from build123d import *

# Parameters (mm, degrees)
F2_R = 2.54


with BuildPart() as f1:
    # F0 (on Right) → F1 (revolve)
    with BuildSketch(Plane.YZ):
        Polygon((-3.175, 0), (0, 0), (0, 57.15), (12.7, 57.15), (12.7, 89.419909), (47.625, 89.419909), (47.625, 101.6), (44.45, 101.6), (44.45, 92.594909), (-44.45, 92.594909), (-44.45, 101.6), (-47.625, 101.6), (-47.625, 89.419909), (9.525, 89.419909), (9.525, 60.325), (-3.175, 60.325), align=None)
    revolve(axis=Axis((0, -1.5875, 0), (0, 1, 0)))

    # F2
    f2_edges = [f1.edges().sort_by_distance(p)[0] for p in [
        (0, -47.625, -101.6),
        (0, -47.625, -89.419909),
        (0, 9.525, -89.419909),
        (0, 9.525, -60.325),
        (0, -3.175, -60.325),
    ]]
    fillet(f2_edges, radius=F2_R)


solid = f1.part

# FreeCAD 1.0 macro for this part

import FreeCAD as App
import Part
import Sketcher
from FreeCAD import Vector
Q = App.Units.Quantity


def edges_at(feature, points):
    """Names of the edges that pass closest to the given points."""
    edges = feature.Shape.Edges
    near = lambda p: min(range(len(edges)), key=lambda i: edges[i].distToShape(Part.Vertex(*p))[0])
    return sorted({f"Edge{near(p) + 1}" for p in points})

doc = App.newDocument("Part")
body = doc.addObject("PartDesign::Body", "Body")

sketch1 = body.newObject("Sketcher::SketchObject", "Sketch")
sketch1.AttachmentSupport = (doc.getObject("YZ_Plane"), [""])
sketch1.MapMode = "FlatFace"
sketch1.addGeometry(Part.LineSegment(Vector(-3.2, 0, 0), Vector(0, 0, 0)), False)
sketch1.addGeometry(Part.LineSegment(Vector(0, 0, 0), Vector(0, 57.1, 0)), False)
sketch1.addGeometry(Part.LineSegment(Vector(0, 57.1, 0), Vector(12.7, 57.1, 0)), False)
sketch1.addGeometry(Part.LineSegment(Vector(12.7, 57.1, 0), Vector(12.7, 89.4, 0)), False)
sketch1.addGeometry(Part.LineSegment(Vector(12.7, 89.4, 0), Vector(47.6, 89.4, 0)), False)
sketch1.addGeometry(Part.LineSegment(Vector(47.6, 89.4, 0), Vector(47.6, 101.6, 0)), False)
sketch1.addGeometry(Part.LineSegment(Vector(47.6, 101.6, 0), Vector(44.5, 101.6, 0)), False)
sketch1.addGeometry(Part.LineSegment(Vector(44.5, 101.6, 0), Vector(44.5, 92.6, 0)), False)
sketch1.addGeometry(Part.LineSegment(Vector(44.5, 92.6, 0), Vector(-44.5, 92.6, 0)), False)
sketch1.addGeometry(Part.LineSegment(Vector(-44.5, 92.6, 0), Vector(-44.5, 101.6, 0)), False)
sketch1.addGeometry(Part.LineSegment(Vector(-44.5, 101.6, 0), Vector(-47.6, 101.6, 0)), False)
sketch1.addGeometry(Part.LineSegment(Vector(-47.6, 101.6, 0), Vector(-47.6, 89.4, 0)), False)
sketch1.addGeometry(Part.LineSegment(Vector(-47.6, 89.4, 0), Vector(9.5, 89.4, 0)), False)
sketch1.addGeometry(Part.LineSegment(Vector(9.5, 89.4, 0), Vector(9.5, 60.3, 0)), False)
sketch1.addGeometry(Part.LineSegment(Vector(9.5, 60.3, 0), Vector(-3.2, 60.3, 0)), False)
sketch1.addGeometry(Part.LineSegment(Vector(-3.2, 60.3, 0), Vector(-3.2, 0, 0)), False)
sketch1.addConstraint(Sketcher.Constraint("Coincident", 0, 2, 1, 1))
sketch1.addConstraint(Sketcher.Constraint("Coincident", 1, 2, 2, 1))
sketch1.addConstraint(Sketcher.Constraint("Coincident", 2, 2, 3, 1))
sketch1.addConstraint(Sketcher.Constraint("Coincident", 3, 2, 4, 1))
sketch1.addConstraint(Sketcher.Constraint("Coincident", 4, 2, 5, 1))
sketch1.addConstraint(Sketcher.Constraint("Coincident", 5, 2, 6, 1))
sketch1.addConstraint(Sketcher.Constraint("Coincident", 6, 2, 7, 1))
sketch1.addConstraint(Sketcher.Constraint("Coincident", 7, 2, 8, 1))
sketch1.addConstraint(Sketcher.Constraint("Coincident", 8, 2, 9, 1))
sketch1.addConstraint(Sketcher.Constraint("Coincident", 9, 2, 10, 1))
sketch1.addConstraint(Sketcher.Constraint("Coincident", 10, 2, 11, 1))
sketch1.addConstraint(Sketcher.Constraint("Coincident", 11, 2, 12, 1))
sketch1.addConstraint(Sketcher.Constraint("Coincident", 12, 2, 13, 1))
sketch1.addConstraint(Sketcher.Constraint("Coincident", 13, 2, 14, 1))
sketch1.addConstraint(Sketcher.Constraint("Coincident", 14, 2, 15, 1))
sketch1.addConstraint(Sketcher.Constraint("Coincident", 15, 2, 0, 1))
sketch1.addConstraint(Sketcher.Constraint("Horizontal", 0))
sketch1.addConstraint(Sketcher.Constraint("Vertical", 1))
sketch1.addConstraint(Sketcher.Constraint("Horizontal", 2))
sketch1.addConstraint(Sketcher.Constraint("Vertical", 3))
sketch1.addConstraint(Sketcher.Constraint("Horizontal", 4))
sketch1.addConstraint(Sketcher.Constraint("Vertical", 5))
sketch1.addConstraint(Sketcher.Constraint("Horizontal", 6))
sketch1.addConstraint(Sketcher.Constraint("Vertical", 7))
sketch1.addConstraint(Sketcher.Constraint("Horizontal", 8))
sketch1.addConstraint(Sketcher.Constraint("Vertical", 9))
sketch1.addConstraint(Sketcher.Constraint("Horizontal", 10))
sketch1.addConstraint(Sketcher.Constraint("Vertical", 11))
sketch1.addConstraint(Sketcher.Constraint("Horizontal", 12))
sketch1.addConstraint(Sketcher.Constraint("Vertical", 13))
sketch1.addConstraint(Sketcher.Constraint("Horizontal", 14))
sketch1.addConstraint(Sketcher.Constraint("Vertical", 15))
sketch1.addConstraint(Sketcher.Constraint("Coincident", 0, 2, -1, 1))
sketch1.addConstraint(Sketcher.Constraint("Symmetric", 6, 2, 9, 2, -2))
sketch1.addConstraint(Sketcher.Constraint("Symmetric", 4, 2, 11, 2, -2))
sketch1.addConstraint(Sketcher.Constraint("Equal", 0, 6))
sketch1.addConstraint(Sketcher.Constraint("Equal", 2, 14))
sketch1.addConstraint(Sketcher.Constraint("Equal", 12, 1))
sketch1.addConstraint(Sketcher.Constraint("DistanceX", 2, 1, 2, 2, Q("0.5 in")))
sketch1.addConstraint(Sketcher.Constraint("DistanceX", 8, 2, 8, 1, Q("3.5 in")))
sketch1.addConstraint(Sketcher.Constraint("DistanceY", -1, 1, 5, 2, Q("4 in")))
sketch1.addConstraint(Sketcher.Constraint("DistanceX", 0, 1, 0, 2, Q("0.125 in")))
sketch1.addConstraint(Sketcher.Constraint("DistanceY", 15, 2, 15, 1, Q("2.375 in")))
sketch1.addConstraint(Sketcher.Constraint("DistanceY", 4, 2, 7, 2, Q("0.125 in")))
sketch1.addConstraint(Sketcher.Constraint("DistanceY", 3, 1, 3, 2, Q("32.269909 mm")))
revolution = body.newObject("PartDesign::Revolution", "Revolution")
revolution.Profile = sketch1
revolution.ReferenceAxis = (sketch1, ["H_Axis"])
revolution.Angle = 360
doc.recompute()

fillet = body.newObject("PartDesign::Fillet", "Fillet")
fillet.Base = (revolution, edges_at(revolution, [
    (0, -47.625, -101.6),
    (0, -47.625, -89.42),
    (0, 9.525, -89.42),
    (0, 9.525, -60.325),
    (0, -3.175, -60.325),
]))
fillet.Radius = Q("0.1 in")

doc.recompute()
